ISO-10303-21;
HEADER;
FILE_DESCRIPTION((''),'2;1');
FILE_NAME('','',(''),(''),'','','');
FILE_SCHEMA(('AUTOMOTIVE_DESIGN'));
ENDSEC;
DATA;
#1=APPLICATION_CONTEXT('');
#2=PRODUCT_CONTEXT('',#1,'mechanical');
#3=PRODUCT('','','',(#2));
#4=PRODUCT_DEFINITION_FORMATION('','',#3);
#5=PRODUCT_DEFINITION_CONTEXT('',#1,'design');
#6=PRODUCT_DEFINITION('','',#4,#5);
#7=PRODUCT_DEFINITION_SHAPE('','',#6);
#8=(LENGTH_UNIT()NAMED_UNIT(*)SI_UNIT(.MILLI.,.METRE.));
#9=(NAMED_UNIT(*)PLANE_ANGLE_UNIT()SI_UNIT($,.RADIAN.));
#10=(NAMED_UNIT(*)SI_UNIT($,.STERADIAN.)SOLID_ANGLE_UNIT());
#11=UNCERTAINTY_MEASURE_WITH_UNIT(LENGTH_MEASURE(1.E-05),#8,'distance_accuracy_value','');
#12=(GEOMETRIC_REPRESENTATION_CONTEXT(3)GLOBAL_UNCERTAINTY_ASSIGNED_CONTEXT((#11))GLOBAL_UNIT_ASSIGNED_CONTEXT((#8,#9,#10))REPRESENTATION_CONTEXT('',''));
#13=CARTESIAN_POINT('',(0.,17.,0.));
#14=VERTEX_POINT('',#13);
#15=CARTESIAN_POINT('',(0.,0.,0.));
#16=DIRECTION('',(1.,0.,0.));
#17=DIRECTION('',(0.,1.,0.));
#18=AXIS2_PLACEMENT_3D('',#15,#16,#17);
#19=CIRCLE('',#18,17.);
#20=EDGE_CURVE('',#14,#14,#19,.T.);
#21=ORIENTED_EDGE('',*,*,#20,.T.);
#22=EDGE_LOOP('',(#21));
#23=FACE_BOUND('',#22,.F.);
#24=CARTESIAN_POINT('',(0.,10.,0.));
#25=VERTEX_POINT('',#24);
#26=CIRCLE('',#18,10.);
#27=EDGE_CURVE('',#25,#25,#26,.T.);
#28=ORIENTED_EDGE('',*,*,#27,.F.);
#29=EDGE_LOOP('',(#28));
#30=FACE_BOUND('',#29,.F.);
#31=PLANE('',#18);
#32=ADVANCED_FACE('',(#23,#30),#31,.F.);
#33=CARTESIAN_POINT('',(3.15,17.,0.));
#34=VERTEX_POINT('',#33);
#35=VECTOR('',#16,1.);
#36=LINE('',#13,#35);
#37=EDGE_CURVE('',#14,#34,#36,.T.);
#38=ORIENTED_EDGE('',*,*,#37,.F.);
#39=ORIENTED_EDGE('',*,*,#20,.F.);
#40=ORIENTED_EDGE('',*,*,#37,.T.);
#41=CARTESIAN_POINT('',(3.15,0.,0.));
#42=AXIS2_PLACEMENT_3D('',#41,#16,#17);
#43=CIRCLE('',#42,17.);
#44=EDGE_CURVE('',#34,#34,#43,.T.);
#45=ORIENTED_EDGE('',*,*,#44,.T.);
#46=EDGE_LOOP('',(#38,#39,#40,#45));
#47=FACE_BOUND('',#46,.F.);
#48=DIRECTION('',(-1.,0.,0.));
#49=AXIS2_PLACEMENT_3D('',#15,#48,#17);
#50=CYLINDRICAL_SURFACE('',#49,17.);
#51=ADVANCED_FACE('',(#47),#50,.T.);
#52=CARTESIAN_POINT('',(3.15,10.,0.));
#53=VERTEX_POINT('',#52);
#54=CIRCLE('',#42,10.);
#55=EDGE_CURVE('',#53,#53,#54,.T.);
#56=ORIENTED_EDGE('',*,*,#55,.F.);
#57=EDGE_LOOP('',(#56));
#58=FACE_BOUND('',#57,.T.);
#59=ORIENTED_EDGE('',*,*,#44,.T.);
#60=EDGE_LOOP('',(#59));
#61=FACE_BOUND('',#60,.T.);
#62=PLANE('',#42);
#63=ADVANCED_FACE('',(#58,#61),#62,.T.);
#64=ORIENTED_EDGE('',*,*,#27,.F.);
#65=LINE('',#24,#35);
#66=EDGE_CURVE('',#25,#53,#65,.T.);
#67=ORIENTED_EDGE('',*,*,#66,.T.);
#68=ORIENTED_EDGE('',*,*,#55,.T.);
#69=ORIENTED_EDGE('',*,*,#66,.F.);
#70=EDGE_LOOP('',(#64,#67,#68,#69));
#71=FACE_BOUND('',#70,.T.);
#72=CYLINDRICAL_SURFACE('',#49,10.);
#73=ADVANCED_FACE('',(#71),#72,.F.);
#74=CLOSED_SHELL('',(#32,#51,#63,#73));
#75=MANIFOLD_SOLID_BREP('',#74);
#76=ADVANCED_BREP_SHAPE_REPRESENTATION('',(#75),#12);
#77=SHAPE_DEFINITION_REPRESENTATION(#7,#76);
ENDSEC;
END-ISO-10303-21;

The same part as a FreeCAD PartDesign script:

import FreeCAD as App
import Part
import Sketcher

V = App.Vector
Q = App.Units.Quantity

doc = App.newDocument("Part")
body = doc.addObject("PartDesign::Body", "Body")

# Sketch on YZ plane
sketch1 = body.newObject("Sketcher::SketchObject", "Sketch")
sketch1.AttachmentSupport = (doc.getObject("YZ_Plane"), [""])
sketch1.MapMode = "FlatFace"
sketch1.addGeometry(Part.Circle(V(0, 0, 0), V(0, 0, 1), 17), False)
sketch1.addGeometry(Part.Circle(V(0, 0, 0), V(0, 0, 1), 10), False)
sketch1.addConstraint(Sketcher.Constraint("Coincident", 0, 3, -1, 1))
sketch1.addConstraint(Sketcher.Constraint("Coincident", 1, 3, -1, 1))
sketch1.addConstraint(Sketcher.Constraint("Diameter", 0, Q("34 mm")))
sketch1.addConstraint(Sketcher.Constraint("Diameter", 1, Q("20 mm")))
pad1 = body.newObject("PartDesign::Pad", "Pad")
pad1.Profile = sketch1
pad1.Length = 3.15

doc.recompute()
